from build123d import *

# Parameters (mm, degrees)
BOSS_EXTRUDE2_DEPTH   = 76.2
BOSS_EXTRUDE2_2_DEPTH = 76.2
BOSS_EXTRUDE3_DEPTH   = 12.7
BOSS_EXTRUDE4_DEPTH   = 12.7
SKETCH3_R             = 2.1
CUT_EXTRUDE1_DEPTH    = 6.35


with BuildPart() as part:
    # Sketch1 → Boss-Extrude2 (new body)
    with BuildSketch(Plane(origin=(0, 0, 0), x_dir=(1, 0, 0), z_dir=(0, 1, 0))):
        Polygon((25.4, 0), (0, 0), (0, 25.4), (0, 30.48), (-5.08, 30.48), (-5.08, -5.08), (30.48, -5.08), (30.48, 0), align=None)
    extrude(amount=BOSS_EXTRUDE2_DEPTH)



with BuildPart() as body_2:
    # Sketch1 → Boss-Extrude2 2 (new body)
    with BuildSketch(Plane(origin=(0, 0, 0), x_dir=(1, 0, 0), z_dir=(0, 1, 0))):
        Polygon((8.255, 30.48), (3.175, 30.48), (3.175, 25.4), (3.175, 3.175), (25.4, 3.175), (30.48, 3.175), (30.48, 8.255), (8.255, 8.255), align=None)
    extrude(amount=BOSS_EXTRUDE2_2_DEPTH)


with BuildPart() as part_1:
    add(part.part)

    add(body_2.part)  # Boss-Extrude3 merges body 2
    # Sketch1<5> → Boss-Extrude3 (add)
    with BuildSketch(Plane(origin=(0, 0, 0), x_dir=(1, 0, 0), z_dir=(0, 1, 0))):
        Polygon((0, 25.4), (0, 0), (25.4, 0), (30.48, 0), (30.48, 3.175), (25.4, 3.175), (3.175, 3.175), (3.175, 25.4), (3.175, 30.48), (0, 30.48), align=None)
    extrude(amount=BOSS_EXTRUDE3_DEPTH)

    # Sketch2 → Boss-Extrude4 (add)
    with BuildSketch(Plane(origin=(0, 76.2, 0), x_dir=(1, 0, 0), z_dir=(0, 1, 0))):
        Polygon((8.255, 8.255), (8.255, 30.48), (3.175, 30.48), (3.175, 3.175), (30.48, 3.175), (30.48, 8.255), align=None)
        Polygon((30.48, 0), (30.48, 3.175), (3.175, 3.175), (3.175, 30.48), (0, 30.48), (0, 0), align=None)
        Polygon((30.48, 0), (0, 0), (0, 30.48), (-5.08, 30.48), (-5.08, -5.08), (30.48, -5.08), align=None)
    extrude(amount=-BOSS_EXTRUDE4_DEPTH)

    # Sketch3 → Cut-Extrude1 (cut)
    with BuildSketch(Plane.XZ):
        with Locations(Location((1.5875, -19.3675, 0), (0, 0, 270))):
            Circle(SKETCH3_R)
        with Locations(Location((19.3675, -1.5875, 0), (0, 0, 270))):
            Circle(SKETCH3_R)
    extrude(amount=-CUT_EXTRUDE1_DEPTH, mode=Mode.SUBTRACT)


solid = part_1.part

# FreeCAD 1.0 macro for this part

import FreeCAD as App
import Part
import Sketcher

V = App.Vector
Q = App.Units.Quantity

doc = App.newDocument("Part")
body = doc.addObject("PartDesign::Body", "Body")

sketch1 = doc.addObject("Sketcher::SketchObject", "Sketch")
body.addObject(sketch1)
sketch1.AttachmentSupport = (doc.XZ_Plane, [""])
sketch1.MapMode = "FlatFace"
sketch1.addGeometry(Part.LineSegment(V(0, 0, 0), V(0, -30, 0)), False)
sketch1.addGeometry(Part.LineSegment(V(0, -30, 0), V(-5, -30, 0)), False)
sketch1.addGeometry(Part.LineSegment(V(-5, -30, 0), V(-5, 5, 0)), False)
sketch1.addGeometry(Part.LineSegment(V(-5, 5, 0), V(30, 5, 0)), False)
sketch1.addGeometry(Part.LineSegment(V(30, 5, 0), V(30, 0, 0)), False)
sketch1.addGeometry(Part.LineSegment(V(30, 0, 0), V(0, 0, 0)), False)
sketch1.addConstraint(Sketcher.Constraint("Coincident", 0, 2, 1, 1))
sketch1.addConstraint(Sketcher.Constraint("Coincident", 1, 2, 2, 1))
sketch1.addConstraint(Sketcher.Constraint("Coincident", 2, 2, 3, 1))
sketch1.addConstraint(Sketcher.Constraint("Coincident", 3, 2, 4, 1))
sketch1.addConstraint(Sketcher.Constraint("Coincident", 4, 2, 5, 1))
sketch1.addConstraint(Sketcher.Constraint("Coincident", 5, 2, 0, 1))
sketch1.addConstraint(Sketcher.Constraint("Vertical", 0))
sketch1.addConstraint(Sketcher.Constraint("Horizontal", 1))
sketch1.addConstraint(Sketcher.Constraint("Vertical", 2))
sketch1.addConstraint(Sketcher.Constraint("Horizontal", 3))
sketch1.addConstraint(Sketcher.Constraint("Vertical", 4))
sketch1.addConstraint(Sketcher.Constraint("Horizontal", 5))
sketch1.addConstraint(Sketcher.Constraint("Coincident", 5, 2, -1, 1))
sketch1.addConstraint(Sketcher.Constraint("Equal", 5, 0))
sketch1.addConstraint(Sketcher.Constraint("Equal", 3, 2))
sketch1.addConstraint(Sketcher.Constraint("DistanceX", 1, 2, 1, 1, Q("0.2 in")))
sketch1.addConstraint(Sketcher.Constraint("DistanceX", 3, 1, 3, 2, Q("1.4 in")))
pad1 = doc.addObject("PartDesign::Pad", "Pad")
body.addObject(pad1)
pad1.Profile = sketch1
pad1.Length = Q("3 in")
pad1.Reversed = True
body2 = doc.addObject("PartDesign::Body", "Body001")

sketch2 = doc.addObject("Sketcher::SketchObject", "Sketch001")
body2.addObject(sketch2)
sketch2.AttachmentSupport = (doc.getObject("XZ_Plane001"), [""])
sketch2.MapMode = "FlatFace"
sketch2.addGeometry(Part.LineSegment(V(8, -30, 0), V(3, -30, 0)), False)
sketch2.addGeometry(Part.LineSegment(V(3, -30, 0), V(3, -3, 0)), False)
sketch2.addGeometry(Part.LineSegment(V(3, -3, 0), V(30, -3, 0)), False)
sketch2.addGeometry(Part.LineSegment(V(30, -3, 0), V(30, -8, 0)), False)
sketch2.addGeometry(Part.LineSegment(V(30, -8, 0), V(8, -8, 0)), False)
sketch2.addGeometry(Part.LineSegment(V(8, -8, 0), V(8, -30, 0)), False)
sketch2.addConstraint(Sketcher.Constraint("Coincident", 0, 2, 1, 1))
sketch2.addConstraint(Sketcher.Constraint("Coincident", 1, 2, 2, 1))
sketch2.addConstraint(Sketcher.Constraint("Coincident", 2, 2, 3, 1))
sketch2.addConstraint(Sketcher.Constraint("Coincident", 3, 2, 4, 1))
sketch2.addConstraint(Sketcher.Constraint("Coincident", 4, 2, 5, 1))
sketch2.addConstraint(Sketcher.Constraint("Coincident", 5, 2, 0, 1))
sketch2.addConstraint(Sketcher.Constraint("Horizontal", 0))
sketch2.addConstraint(Sketcher.Constraint("Vertical", 1))
sketch2.addConstraint(Sketcher.Constraint("Horizontal", 2))
sketch2.addConstraint(Sketcher.Constraint("Vertical", 3))
sketch2.addConstraint(Sketcher.Constraint("Horizontal", 4))
sketch2.addConstraint(Sketcher.Constraint("Vertical", 5))
sketch2.addConstraint(Sketcher.Constraint("Equal", 2, 1))
sketch2.addConstraint(Sketcher.Constraint("Equal", 0, 3))
sketch2.addConstraint(Sketcher.Constraint("DistanceX", 0, 2, 0, 1, Q("0.2 in")))
sketch2.addConstraint(Sketcher.Constraint("DistanceY", 0, 2, -1, 1, Q("1.2 in")))
sketch2.addConstraint(Sketcher.Constraint("DistanceX", -1, 1, 2, 2, Q("1.2 in")))
sketch2.addConstraint(Sketcher.Constraint("DistanceX", 2, 1, 2, 2, Q("1.075 in")))
pad2 = doc.addObject("PartDesign::Pad", "Pad001")
body2.addObject(pad2)
pad2.Profile = sketch2
pad2.Length = Q("3 in")
pad2.Reversed = True
body.AllowCompound = True
doc.recompute()

boolean = doc.addObject("PartDesign::Boolean", "Boolean")
body.addObject(boolean)
boolean.Type = "Fuse"
boolean.addObjects([body2])

sketch3 = doc.addObject("Sketcher::SketchObject", "Sketch002")
body.addObject(sketch3)
sketch3.AttachmentSupport = (doc.XZ_Plane, [""])
sketch3.MapMode = "FlatFace"
sketch3.addGeometry(Part.LineSegment(V(0, 0, 0), V(30.5, 0, 0)), False)
sketch3.addGeometry(Part.LineSegment(V(30.5, 0, 0), V(30.5, -3.2, 0)), False)
sketch3.addGeometry(Part.LineSegment(V(30.5, -3.2, 0), V(3.2, -3.2, 0)), False)
sketch3.addGeometry(Part.LineSegment(V(3.2, -3.2, 0), V(3.2, -30.5, 0)), False)
sketch3.addGeometry(Part.LineSegment(V(3.2, -30.5, 0), V(0, -30.5, 0)), False)
sketch3.addGeometry(Part.LineSegment(V(0, -30.5, 0), V(0, 0, 0)), False)
sketch3.addConstraint(Sketcher.Constraint("Coincident", 0, 2, 1, 1))
sketch3.addConstraint(Sketcher.Constraint("Coincident", 1, 2, 2, 1))
sketch3.addConstraint(Sketcher.Constraint("Coincident", 2, 2, 3, 1))
sketch3.addConstraint(Sketcher.Constraint("Coincident", 3, 2, 4, 1))
sketch3.addConstraint(Sketcher.Constraint("Coincident", 4, 2, 5, 1))
sketch3.addConstraint(Sketcher.Constraint("Coincident", 5, 2, 0, 1))
sketch3.addConstraint(Sketcher.Constraint("Horizontal", 0))
sketch3.addConstraint(Sketcher.Constraint("Vertical", 1))
sketch3.addConstraint(Sketcher.Constraint("Horizontal", 2))
sketch3.addConstraint(Sketcher.Constraint("Vertical", 3))
sketch3.addConstraint(Sketcher.Constraint("Horizontal", 4))
sketch3.addConstraint(Sketcher.Constraint("Vertical", 5))
sketch3.addConstraint(Sketcher.Constraint("Coincident", 5, 2, -1, 1))
sketch3.addConstraint(Sketcher.Constraint("Equal", 4, 1))
sketch3.addConstraint(Sketcher.Constraint("Equal", 2, 3))
sketch3.addConstraint(Sketcher.Constraint("DistanceX", 0, 1, 0, 2, Q("1.2 in")))
sketch3.addConstraint(Sketcher.Constraint("DistanceX", 2, 2, 2, 1, Q("1.075 in")))
pad3 = doc.addObject("PartDesign::Pad", "Pad002")
body.addObject(pad3)
pad3.Profile = sketch3
pad3.Length = Q("0.5 in")
pad3.Reversed = True

sketch4 = doc.addObject("Sketcher::SketchObject", "Sketch003")
body.addObject(sketch4)
sketch4.AttachmentSupport = (doc.XZ_Plane, [""])
sketch4.MapMode = "FlatFace"
sketch4.AttachmentOffset = App.Placement(V(0, 0, -3 * 25.4), App.Rotation())
sketch4.addGeometry(Part.LineSegment(V(8, -8, 0), V(8, -30, 0)), False)
sketch4.addGeometry(Part.LineSegment(V(8, -30, 0), V(-5, -30, 0)), False)
sketch4.addGeometry(Part.LineSegment(V(-5, -30, 0), V(-5, 5, 0)), False)
sketch4.addGeometry(Part.LineSegment(V(-5, 5, 0), V(30, 5, 0)), False)
sketch4.addGeometry(Part.LineSegment(V(30, 5, 0), V(30, -8, 0)), False)
sketch4.addGeometry(Part.LineSegment(V(30, -8, 0), V(8, -8, 0)), False)
sketch4.addConstraint(Sketcher.Constraint("Coincident", 0, 2, 1, 1))
sketch4.addConstraint(Sketcher.Constraint("Coincident", 1, 2, 2, 1))
sketch4.addConstraint(Sketcher.Constraint("Coincident", 2, 2, 3, 1))
sketch4.addConstraint(Sketcher.Constraint("Coincident", 3, 2, 4, 1))
sketch4.addConstraint(Sketcher.Constraint("Coincident", 4, 2, 5, 1))
sketch4.addConstraint(Sketcher.Constraint("Coincident", 5, 2, 0, 1))
sketch4.addConstraint(Sketcher.Constraint("Vertical", 0))
sketch4.addConstraint(Sketcher.Constraint("Horizontal", 1))
sketch4.addConstraint(Sketcher.Constraint("Vertical", 2))
sketch4.addConstraint(Sketcher.Constraint("Horizontal", 3))
sketch4.addConstraint(Sketcher.Constraint("Vertical", 4))
sketch4.addConstraint(Sketcher.Constraint("Horizontal", 5))
sketch4.addConstraint(Sketcher.Constraint("Equal", 5, 0))
sketch4.addConstraint(Sketcher.Constraint("Equal", 3, 2))
sketch4.addConstraint(Sketcher.Constraint("DistanceX", 3, 1, 3, 2, Q("1.4 in")))
sketch4.addConstraint(Sketcher.Constraint("DistanceY", 0, 2, -1, 1, Q("1.2 in")))
sketch4.addConstraint(Sketcher.Constraint("DistanceX", 1, 2, -1, 1, Q("0.2 in")))
sketch4.addConstraint(Sketcher.Constraint("DistanceX", 1, 2, 1, 1, Q("0.525 in")))
pad4 = doc.addObject("PartDesign::Pad", "Pad003")
body.addObject(pad4)
pad4.Profile = sketch4
pad4.Length = Q("0.5 in")

sketch5 = doc.addObject("Sketcher::SketchObject", "Sketch004")
body.addObject(sketch5)
sketch5.AttachmentSupport = (doc.XZ_Plane, [""])
sketch5.MapMode = "FlatFace"
sketch5.addGeometry(Part.Circle(V(1.6, -19.4, 0), V(0, 0, 1), 2.1), False)
sketch5.addGeometry(Part.Circle(V(19.4, -1.6, 0), V(0, 0, 1), 2.1), False)
sketch5.addConstraint(Sketcher.Constraint("Equal", 0, 1))
sketch5.addConstraint(Sketcher.Constraint("DistanceX", 0, 3, 1, 3, Q("0.7 in")))
sketch5.addConstraint(Sketcher.Constraint("DistanceY", 0, 3, 1, 3, Q("0.7 in")))
sketch5.addConstraint(Sketcher.Constraint("Diameter", 0, 4.2))
sketch5.addConstraint(Sketcher.Constraint("DistanceX", -1, 1, 0, 3, Q("0.0625 in")))
sketch5.addConstraint(Sketcher.Constraint("DistanceY", 1, 3, -1, 1, Q("0.0625 in")))
pocket1 = doc.addObject("PartDesign::Pocket", "Pocket")
body.addObject(pocket1)
pocket1.Profile = sketch5
pocket1.Length = Q("0.25 in")

doc.recompute()
